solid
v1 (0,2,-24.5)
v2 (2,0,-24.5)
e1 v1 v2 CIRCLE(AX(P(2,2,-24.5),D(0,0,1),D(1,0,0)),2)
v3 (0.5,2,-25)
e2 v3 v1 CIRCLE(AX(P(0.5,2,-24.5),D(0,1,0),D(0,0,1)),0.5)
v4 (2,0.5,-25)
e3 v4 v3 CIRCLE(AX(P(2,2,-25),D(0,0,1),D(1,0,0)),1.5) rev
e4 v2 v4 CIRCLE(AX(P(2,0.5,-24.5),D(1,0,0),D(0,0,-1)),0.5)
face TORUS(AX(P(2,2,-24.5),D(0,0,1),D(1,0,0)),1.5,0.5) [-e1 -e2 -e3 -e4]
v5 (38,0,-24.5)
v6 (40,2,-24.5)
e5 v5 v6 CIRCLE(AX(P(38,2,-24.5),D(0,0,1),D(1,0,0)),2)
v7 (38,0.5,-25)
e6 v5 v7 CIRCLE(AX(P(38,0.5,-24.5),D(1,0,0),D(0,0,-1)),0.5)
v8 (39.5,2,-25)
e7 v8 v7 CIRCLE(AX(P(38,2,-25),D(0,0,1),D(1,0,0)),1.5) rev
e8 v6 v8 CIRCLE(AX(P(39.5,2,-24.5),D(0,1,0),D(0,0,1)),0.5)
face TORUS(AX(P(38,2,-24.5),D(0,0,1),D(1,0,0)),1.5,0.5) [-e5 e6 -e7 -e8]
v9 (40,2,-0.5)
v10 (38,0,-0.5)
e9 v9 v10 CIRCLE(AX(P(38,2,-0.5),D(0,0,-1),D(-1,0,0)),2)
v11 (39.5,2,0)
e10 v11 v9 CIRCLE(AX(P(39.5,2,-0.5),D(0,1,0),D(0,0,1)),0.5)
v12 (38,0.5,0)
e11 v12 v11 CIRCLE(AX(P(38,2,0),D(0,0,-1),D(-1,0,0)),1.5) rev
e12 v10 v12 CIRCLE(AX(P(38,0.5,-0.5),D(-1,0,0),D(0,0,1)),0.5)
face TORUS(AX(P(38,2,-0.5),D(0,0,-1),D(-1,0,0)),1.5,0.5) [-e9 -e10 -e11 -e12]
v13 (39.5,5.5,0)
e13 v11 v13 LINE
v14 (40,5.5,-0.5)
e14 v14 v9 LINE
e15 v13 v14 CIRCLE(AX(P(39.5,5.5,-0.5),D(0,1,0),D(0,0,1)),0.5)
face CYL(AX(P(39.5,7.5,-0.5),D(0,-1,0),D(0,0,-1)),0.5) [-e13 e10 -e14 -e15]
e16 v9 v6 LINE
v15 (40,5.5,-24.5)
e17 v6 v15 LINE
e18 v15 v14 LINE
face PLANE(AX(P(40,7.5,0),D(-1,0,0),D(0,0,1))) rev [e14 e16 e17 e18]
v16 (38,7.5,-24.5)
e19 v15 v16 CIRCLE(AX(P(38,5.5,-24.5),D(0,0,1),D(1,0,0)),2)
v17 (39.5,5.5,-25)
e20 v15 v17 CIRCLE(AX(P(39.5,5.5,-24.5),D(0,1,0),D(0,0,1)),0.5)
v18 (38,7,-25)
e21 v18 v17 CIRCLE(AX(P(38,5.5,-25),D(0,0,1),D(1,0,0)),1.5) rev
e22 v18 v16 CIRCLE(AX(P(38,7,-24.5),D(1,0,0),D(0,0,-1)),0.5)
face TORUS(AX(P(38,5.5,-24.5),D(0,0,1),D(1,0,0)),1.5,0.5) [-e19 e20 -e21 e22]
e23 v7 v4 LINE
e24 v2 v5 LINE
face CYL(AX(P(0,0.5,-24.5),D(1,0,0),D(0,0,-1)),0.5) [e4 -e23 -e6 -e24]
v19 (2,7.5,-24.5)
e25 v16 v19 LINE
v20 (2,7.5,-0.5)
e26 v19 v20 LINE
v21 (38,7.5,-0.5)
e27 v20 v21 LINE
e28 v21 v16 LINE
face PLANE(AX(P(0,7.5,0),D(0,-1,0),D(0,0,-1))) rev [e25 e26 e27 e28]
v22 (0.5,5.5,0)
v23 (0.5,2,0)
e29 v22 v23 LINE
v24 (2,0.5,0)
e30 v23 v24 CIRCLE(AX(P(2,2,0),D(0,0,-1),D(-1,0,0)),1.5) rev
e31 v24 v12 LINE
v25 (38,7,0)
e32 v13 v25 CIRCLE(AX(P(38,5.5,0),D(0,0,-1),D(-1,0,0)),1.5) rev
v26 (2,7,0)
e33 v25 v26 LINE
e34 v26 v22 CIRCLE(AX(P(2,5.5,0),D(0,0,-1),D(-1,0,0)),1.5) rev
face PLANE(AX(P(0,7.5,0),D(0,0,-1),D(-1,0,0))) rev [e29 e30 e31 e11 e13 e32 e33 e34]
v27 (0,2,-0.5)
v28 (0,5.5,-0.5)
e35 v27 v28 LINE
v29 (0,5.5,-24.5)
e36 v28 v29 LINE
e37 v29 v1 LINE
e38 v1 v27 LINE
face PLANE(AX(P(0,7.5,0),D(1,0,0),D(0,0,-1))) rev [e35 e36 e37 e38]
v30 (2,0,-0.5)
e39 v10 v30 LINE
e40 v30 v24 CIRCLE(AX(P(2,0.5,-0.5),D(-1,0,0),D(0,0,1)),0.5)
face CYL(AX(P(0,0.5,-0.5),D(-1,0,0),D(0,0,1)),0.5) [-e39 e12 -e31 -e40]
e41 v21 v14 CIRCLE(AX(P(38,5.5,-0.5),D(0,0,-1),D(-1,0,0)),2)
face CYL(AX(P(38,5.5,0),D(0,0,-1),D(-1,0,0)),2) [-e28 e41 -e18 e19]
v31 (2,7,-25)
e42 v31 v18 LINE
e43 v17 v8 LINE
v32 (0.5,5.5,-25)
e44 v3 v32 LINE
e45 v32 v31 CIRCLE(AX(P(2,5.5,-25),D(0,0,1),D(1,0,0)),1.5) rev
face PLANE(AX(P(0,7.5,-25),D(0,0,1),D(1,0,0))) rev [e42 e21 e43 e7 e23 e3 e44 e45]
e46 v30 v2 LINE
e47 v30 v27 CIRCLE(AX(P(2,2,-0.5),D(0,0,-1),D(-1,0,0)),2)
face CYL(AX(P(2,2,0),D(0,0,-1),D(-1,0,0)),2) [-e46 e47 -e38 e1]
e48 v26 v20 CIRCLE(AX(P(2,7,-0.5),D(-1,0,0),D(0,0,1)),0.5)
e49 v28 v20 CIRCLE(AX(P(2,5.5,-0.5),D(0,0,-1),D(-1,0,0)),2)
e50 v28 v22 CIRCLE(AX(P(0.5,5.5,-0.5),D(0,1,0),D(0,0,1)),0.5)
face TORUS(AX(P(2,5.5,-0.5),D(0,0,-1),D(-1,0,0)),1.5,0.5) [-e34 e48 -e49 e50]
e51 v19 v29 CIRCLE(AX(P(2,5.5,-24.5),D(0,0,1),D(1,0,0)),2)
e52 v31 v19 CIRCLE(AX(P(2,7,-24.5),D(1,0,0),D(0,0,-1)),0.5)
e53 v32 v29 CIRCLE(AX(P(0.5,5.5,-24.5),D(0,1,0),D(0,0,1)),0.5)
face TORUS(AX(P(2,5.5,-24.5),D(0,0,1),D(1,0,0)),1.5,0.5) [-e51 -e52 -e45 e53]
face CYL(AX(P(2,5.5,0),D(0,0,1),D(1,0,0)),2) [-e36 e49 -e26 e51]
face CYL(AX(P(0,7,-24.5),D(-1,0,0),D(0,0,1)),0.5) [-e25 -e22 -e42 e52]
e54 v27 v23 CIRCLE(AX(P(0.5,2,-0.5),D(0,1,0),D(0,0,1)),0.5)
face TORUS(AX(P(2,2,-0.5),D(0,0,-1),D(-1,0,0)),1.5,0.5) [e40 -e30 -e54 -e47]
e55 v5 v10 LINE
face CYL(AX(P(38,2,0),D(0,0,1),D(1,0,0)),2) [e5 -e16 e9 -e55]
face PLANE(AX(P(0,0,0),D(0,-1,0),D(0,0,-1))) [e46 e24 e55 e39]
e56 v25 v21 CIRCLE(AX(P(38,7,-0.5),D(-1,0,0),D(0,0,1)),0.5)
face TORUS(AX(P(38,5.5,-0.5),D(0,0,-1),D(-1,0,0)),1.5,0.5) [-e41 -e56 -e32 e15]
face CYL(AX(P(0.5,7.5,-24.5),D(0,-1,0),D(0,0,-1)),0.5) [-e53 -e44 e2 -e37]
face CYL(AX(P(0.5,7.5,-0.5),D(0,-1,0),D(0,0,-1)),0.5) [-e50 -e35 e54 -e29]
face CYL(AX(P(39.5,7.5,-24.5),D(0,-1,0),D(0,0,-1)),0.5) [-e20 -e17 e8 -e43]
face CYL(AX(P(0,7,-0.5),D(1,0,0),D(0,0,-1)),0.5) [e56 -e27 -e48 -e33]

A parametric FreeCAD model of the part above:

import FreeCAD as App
import Part
import Sketcher
from FreeCAD import Vector
Q = App.Units.Quantity


def edges_at(feature, points):
    """Names of the edges that pass closest to the given points."""
    edges = feature.Shape.Edges
    near = lambda p: min(range(len(edges)), key=lambda i: edges[i].distToShape(Part.Vertex(*p))[0])
    return sorted({f"Edge{near(p) + 1}" for p in points})


def add_polygon(sketch, points):
    """Adds a closed chain of lines whose ends are joined by coincident constraints."""
    first, n = sketch.GeometryCount, len(points)
    for a, b in zip(points, points[1:] + points[:1]):
        sketch.addGeometry(Part.LineSegment(App.Vector(*a, 0), App.Vector(*b, 0)), False)
    for i in range(n):
        sketch.addConstraint(Sketcher.Constraint("Coincident", first + i, 2, first + (i + 1) % n, 1))

doc = App.newDocument("Part")
body = doc.addObject("PartDesign::Body", "Body")

# Sketch on XZ plane
sketch1 = doc.addObject("Sketcher::SketchObject", "Sketch")
body.addObject(sketch1)
sketch1.AttachmentSupport = (doc.XZ_Plane, [""])
sketch1.MapMode = "FlatFace"
add_polygon(sketch1, [(0, -25), (0, 0), (40, 0), (40, -25)])  # lines 0-3
sketch1.addConstraint(Sketcher.Constraint("Vertical", 0))
sketch1.addConstraint(Sketcher.Constraint("Horizontal", 1))
sketch1.addConstraint(Sketcher.Constraint("Vertical", 2))
sketch1.addConstraint(Sketcher.Constraint("Horizontal", 3))
sketch1.addConstraint(Sketcher.Constraint("Coincident", 0, 2, -1, 1))
sketch1.addConstraint(Sketcher.Constraint("DistanceX", 1, 1, 1, 2, Q("40 mm")))
sketch1.addConstraint(Sketcher.Constraint("DistanceY", 0, 1, 0, 2, Q("25 mm")))
pad1 = doc.addObject("PartDesign::Pad", "Pad")
body.addObject(pad1)
pad1.Profile = sketch1
pad1.Length = 7.5
pad1.Reversed = True
doc.recompute()

fillet = doc.addObject("PartDesign::Fillet", "Fillet")
body.addObject(fillet)
fillet.Base = (pad1, edges_at(pad1, [(40, 7.5, -12.5)]))
fillet.Radius = 2
doc.recompute()

fillet2 = doc.addObject("PartDesign::Fillet", "Fillet001")
body.addObject(fillet2)
fillet2.Base = (fillet, edges_at(fillet, [(40, 0, -12.5)]))
fillet2.Radius = 2
doc.recompute()

fillet3 = doc.addObject("PartDesign::Fillet", "Fillet002")
body.addObject(fillet3)
fillet3.Base = (fillet2, edges_at(fillet2, [(0, 7.5, -12.5), (0, 0, -12.5)]))
fillet3.Radius = 2
doc.recompute()

fillet4 = doc.addObject("PartDesign::Fillet", "Fillet003")
body.addObject(fillet4)
fillet4.Base = (fillet3, edges_at(fillet3, [
    (40, 3.75, 0),
    (39.414, 6.914, 0),
    (39.414, 0.586, 0),
    (0, 3.75, 0),
    (20, 0, 0),
    (20, 7.5, 0),
    (0.586, 6.914, 0),
    (0.586, 0.586, 0),
]))
fillet4.Radius = 0.5
doc.recompute()

fillet5 = doc.addObject("PartDesign::Fillet", "Fillet004")
body.addObject(fillet5)
fillet5.Base = (fillet4, edges_at(fillet4, [
    (20, 7.5, -25),
    (40, 3.75, -25),
    (39.414, 6.914, -25),
    (20, 0, -25),
    (39.414, 0.586, -25),
    (0, 3.75, -25),
    (0.586, 6.914, -25),
    (0.586, 0.586, -25),
]))
fillet5.Radius = 0.5

doc.recompute()
